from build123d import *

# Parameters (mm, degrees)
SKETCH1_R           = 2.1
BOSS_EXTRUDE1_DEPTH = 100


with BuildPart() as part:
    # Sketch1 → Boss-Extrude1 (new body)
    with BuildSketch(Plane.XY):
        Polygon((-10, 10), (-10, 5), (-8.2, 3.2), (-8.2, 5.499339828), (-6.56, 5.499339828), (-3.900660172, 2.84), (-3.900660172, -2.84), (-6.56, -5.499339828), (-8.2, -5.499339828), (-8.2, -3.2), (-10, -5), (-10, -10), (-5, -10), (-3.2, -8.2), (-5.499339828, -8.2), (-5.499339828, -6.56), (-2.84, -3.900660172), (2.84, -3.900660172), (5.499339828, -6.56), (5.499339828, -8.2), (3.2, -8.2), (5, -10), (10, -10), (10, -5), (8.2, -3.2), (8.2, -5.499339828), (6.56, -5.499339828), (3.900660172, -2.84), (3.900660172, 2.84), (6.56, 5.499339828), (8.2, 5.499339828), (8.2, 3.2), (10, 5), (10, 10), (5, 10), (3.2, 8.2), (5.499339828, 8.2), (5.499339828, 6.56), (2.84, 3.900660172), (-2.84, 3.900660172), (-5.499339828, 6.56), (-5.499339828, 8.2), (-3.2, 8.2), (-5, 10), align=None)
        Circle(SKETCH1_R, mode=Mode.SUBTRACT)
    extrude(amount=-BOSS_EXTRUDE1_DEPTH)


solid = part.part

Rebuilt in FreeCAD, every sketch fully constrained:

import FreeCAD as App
import Part
import Sketcher
Q = App.Units.Quantity


def add_polygon(sketch, points):
    """Adds a closed chain of lines whose ends are joined by coincident constraints."""
    first, n = sketch.GeometryCount, len(points)
    for a, b in zip(points, points[1:] + points[:1]):
        sketch.addGeometry(Part.LineSegment(App.Vector(*a, 0), App.Vector(*b, 0)), False)
    for i in range(n):
        sketch.addConstraint(Sketcher.Constraint("Coincident", first + i, 2, first + (i + 1) % n, 1))

doc = App.newDocument("Part")
body = doc.addObject("PartDesign::Body", "Body")

sketch1 = doc.addObject("Sketcher::SketchObject", "Sketch")
body.addObject(sketch1)
sketch1.AttachmentSupport = (doc.XY_Plane, [""])
sketch1.MapMode = "FlatFace"
add_polygon(sketch1, [(-10, 10), (-10, 5), (-8.2, 3.2), (-8.2, 5.5), (-6.6, 5.5), (-3.9, 2.8), (-3.9, -2.8), (-6.6, -5.5), (-8.2, -5.5), (-8.2, -3.2), (-10, -5), (-10, -10), (-5, -10), (-3.2, -8.2), (-5.5, -8.2), (-5.5, -6.6), (-2.8, -3.9), (2.8, -3.9), (5.5, -6.6), (5.5, -8.2), (3.2, -8.2), (5, -10), (10, -10), (10, -5), (8.2, -3.2), (8.2, -5.5), (6.6, -5.5), (3.9, -2.8), (3.9, 2.8), (6.6, 5.5), (8.2, 5.5), (8.2, 3.2), (10, 5), (10, 10), (5, 10), (3.2, 8.2), (5.5, 8.2), (5.5, 6.6), (2.8, 3.9), (-2.8, 3.9), (-5.5, 6.6), (-5.5, 8.2), (-3.2, 8.2), (-5, 10)])
sketch1.addGeometry(Part.Circle(App.Vector(0, 0, 0), App.Vector(0, 0, 1), 2.1), False)
sketch1.addConstraint(Sketcher.Constraint("Vertical", 0))
sketch1.addConstraint(Sketcher.Constraint("Vertical", 2))
sketch1.addConstraint(Sketcher.Constraint("Horizontal", 3))
sketch1.addConstraint(Sketcher.Constraint("Vertical", 5))
sketch1.addConstraint(Sketcher.Constraint("Horizontal", 7))
sketch1.addConstraint(Sketcher.Constraint("Vertical", 8))
sketch1.addConstraint(Sketcher.Constraint("Vertical", 10))
sketch1.addConstraint(Sketcher.Constraint("Horizontal", 11))
sketch1.addConstraint(Sketcher.Constraint("Horizontal", 13))
sketch1.addConstraint(Sketcher.Constraint("Vertical", 14))
sketch1.addConstraint(Sketcher.Constraint("Horizontal", 16))
sketch1.addConstraint(Sketcher.Constraint("Vertical", 18))
sketch1.addConstraint(Sketcher.Constraint("Horizontal", 19))
sketch1.addConstraint(Sketcher.Constraint("Horizontal", 21))
sketch1.addConstraint(Sketcher.Constraint("Vertical", 22))
sketch1.addConstraint(Sketcher.Constraint("Vertical", 24))
sketch1.addConstraint(Sketcher.Constraint("Horizontal", 25))
sketch1.addConstraint(Sketcher.Constraint("Vertical", 27))
sketch1.addConstraint(Sketcher.Constraint("Horizontal", 29))
sketch1.addConstraint(Sketcher.Constraint("Vertical", 30))
sketch1.addConstraint(Sketcher.Constraint("Vertical", 32))
sketch1.addConstraint(Sketcher.Constraint("Horizontal", 33))
sketch1.addConstraint(Sketcher.Constraint("Horizontal", 35))
sketch1.addConstraint(Sketcher.Constraint("Vertical", 36))
sketch1.addConstraint(Sketcher.Constraint("Horizontal", 38))
sketch1.addConstraint(Sketcher.Constraint("Vertical", 40))
sketch1.addConstraint(Sketcher.Constraint("Horizontal", 41))
sketch1.addConstraint(Sketcher.Constraint("Horizontal", 43))
sketch1.addConstraint(Sketcher.Constraint("Coincident", 44, 3, -1, 1))
sketch1.addConstraint(Sketcher.Constraint("Symmetric", 0, 2, 22, 2, -1, 1))
sketch1.addConstraint(Sketcher.Constraint("Symmetric", 1, 2, 23, 2, -1, 1))
sketch1.addConstraint(Sketcher.Constraint("Symmetric", 3, 2, 25, 2, -1, 1))
sketch1.addConstraint(Sketcher.Constraint("Symmetric", 4, 2, 26, 2, -1, 1))
sketch1.addConstraint(Sketcher.Constraint("Symmetric", 6, 2, 28, 2, -1, 1))
sketch1.addConstraint(Sketcher.Constraint("Symmetric", 8, 2, 30, 2, -1, 1))
sketch1.addConstraint(Sketcher.Constraint("Symmetric", 9, 2, 31, 2, -1, 1))
sketch1.addConstraint(Sketcher.Constraint("Symmetric", 11, 2, 33, 2, -1, 1))
sketch1.addConstraint(Sketcher.Constraint("Symmetric", 12, 2, 34, 2, -1, 1))
sketch1.addConstraint(Sketcher.Constraint("Symmetric", 14, 2, 36, 2, -1, 1))
sketch1.addConstraint(Sketcher.Constraint("Symmetric", 15, 2, 37, 2, -1, 1))
sketch1.addConstraint(Sketcher.Constraint("Symmetric", 17, 2, 39, 2, -1, 1))
sketch1.addConstraint(Sketcher.Constraint("Symmetric", 19, 2, 41, 2, -1, 1))
sketch1.addConstraint(Sketcher.Constraint("Symmetric", 20, 2, 42, 2, -1, 1))
sketch1.addConstraint(Sketcher.Constraint("Symmetric", 14, 2, 17, 2, -2))
sketch1.addConstraint(Sketcher.Constraint("Symmetric", 12, 2, 19, 2, -2))
sketch1.addConstraint(Sketcher.Constraint("Symmetric", 11, 2, 20, 2, -2))
sketch1.addConstraint(Sketcher.Constraint("Symmetric", 9, 2, 22, 2, -2))
sketch1.addConstraint(Sketcher.Constraint("Symmetric", 8, 2, 23, 2, -2))
sketch1.addConstraint(Sketcher.Constraint("Symmetric", 6, 2, 25, 2, -2))
sketch1.addConstraint(Sketcher.Constraint("Parallel", 1, 4))
sketch1.addConstraint(Sketcher.Constraint("Perpendicular", 4, 6))
sketch1.addConstraint(Sketcher.Constraint("Parallel", 6, 9))
sketch1.addConstraint(Sketcher.Constraint("Parallel", 9, 12))
sketch1.addConstraint(Sketcher.Constraint("Parallel", 12, 15))
sketch1.addConstraint(Sketcher.Constraint("Perpendicular", 15, 17))
sketch1.addConstraint(Sketcher.Constraint("Perpendicular", 26, 28))
sketch1.addConstraint(Sketcher.Constraint("Perpendicular", 37, 39))
sketch1.addConstraint(Sketcher.Constraint("Equal", 43, 0))
sketch1.addConstraint(Sketcher.Constraint("Equal", 41, 2))
sketch1.addConstraint(Sketcher.Constraint("Equal", 38, 5))
sketch1.addConstraint(Sketcher.Constraint("Equal", 29, 14))
sketch1.addConstraint(Sketcher.Constraint("Equal", 9, 12))
sketch1.addConstraint(Sketcher.Constraint("Equal", 6, 15))
sketch1.addConstraint(Sketcher.Constraint("Diameter", 44, Q("4.2 mm")))
sketch1.addConstraint(Sketcher.Constraint("DistanceX", 11, 1, 11, 2, Q("5 mm")))
sketch1.addConstraint(Sketcher.Constraint("DistanceX", 0, 2, -1, 1, Q("10 mm")))
sketch1.addConstraint(Sketcher.Constraint("DistanceX", 3, 1, 3, 2, Q("1.64 mm")))
sketch1.addConstraint(Sketcher.Constraint("DistanceX", 16, 1, 16, 2, Q("5.68 mm")))
sketch1.addConstraint(Sketcher.Constraint("DistanceX", 1, 2, -1, 1, Q("8.2 mm")))
sketch1.addConstraint(Sketcher.Constraint("DistanceX", 13, 2, 13, 1, Q("2.29934 mm")))
pad1 = doc.addObject("PartDesign::Pad", "Pad")
body.addObject(pad1)
pad1.Profile = sketch1
pad1.Length = 100
pad1.Reversed = True

doc.recompute()
